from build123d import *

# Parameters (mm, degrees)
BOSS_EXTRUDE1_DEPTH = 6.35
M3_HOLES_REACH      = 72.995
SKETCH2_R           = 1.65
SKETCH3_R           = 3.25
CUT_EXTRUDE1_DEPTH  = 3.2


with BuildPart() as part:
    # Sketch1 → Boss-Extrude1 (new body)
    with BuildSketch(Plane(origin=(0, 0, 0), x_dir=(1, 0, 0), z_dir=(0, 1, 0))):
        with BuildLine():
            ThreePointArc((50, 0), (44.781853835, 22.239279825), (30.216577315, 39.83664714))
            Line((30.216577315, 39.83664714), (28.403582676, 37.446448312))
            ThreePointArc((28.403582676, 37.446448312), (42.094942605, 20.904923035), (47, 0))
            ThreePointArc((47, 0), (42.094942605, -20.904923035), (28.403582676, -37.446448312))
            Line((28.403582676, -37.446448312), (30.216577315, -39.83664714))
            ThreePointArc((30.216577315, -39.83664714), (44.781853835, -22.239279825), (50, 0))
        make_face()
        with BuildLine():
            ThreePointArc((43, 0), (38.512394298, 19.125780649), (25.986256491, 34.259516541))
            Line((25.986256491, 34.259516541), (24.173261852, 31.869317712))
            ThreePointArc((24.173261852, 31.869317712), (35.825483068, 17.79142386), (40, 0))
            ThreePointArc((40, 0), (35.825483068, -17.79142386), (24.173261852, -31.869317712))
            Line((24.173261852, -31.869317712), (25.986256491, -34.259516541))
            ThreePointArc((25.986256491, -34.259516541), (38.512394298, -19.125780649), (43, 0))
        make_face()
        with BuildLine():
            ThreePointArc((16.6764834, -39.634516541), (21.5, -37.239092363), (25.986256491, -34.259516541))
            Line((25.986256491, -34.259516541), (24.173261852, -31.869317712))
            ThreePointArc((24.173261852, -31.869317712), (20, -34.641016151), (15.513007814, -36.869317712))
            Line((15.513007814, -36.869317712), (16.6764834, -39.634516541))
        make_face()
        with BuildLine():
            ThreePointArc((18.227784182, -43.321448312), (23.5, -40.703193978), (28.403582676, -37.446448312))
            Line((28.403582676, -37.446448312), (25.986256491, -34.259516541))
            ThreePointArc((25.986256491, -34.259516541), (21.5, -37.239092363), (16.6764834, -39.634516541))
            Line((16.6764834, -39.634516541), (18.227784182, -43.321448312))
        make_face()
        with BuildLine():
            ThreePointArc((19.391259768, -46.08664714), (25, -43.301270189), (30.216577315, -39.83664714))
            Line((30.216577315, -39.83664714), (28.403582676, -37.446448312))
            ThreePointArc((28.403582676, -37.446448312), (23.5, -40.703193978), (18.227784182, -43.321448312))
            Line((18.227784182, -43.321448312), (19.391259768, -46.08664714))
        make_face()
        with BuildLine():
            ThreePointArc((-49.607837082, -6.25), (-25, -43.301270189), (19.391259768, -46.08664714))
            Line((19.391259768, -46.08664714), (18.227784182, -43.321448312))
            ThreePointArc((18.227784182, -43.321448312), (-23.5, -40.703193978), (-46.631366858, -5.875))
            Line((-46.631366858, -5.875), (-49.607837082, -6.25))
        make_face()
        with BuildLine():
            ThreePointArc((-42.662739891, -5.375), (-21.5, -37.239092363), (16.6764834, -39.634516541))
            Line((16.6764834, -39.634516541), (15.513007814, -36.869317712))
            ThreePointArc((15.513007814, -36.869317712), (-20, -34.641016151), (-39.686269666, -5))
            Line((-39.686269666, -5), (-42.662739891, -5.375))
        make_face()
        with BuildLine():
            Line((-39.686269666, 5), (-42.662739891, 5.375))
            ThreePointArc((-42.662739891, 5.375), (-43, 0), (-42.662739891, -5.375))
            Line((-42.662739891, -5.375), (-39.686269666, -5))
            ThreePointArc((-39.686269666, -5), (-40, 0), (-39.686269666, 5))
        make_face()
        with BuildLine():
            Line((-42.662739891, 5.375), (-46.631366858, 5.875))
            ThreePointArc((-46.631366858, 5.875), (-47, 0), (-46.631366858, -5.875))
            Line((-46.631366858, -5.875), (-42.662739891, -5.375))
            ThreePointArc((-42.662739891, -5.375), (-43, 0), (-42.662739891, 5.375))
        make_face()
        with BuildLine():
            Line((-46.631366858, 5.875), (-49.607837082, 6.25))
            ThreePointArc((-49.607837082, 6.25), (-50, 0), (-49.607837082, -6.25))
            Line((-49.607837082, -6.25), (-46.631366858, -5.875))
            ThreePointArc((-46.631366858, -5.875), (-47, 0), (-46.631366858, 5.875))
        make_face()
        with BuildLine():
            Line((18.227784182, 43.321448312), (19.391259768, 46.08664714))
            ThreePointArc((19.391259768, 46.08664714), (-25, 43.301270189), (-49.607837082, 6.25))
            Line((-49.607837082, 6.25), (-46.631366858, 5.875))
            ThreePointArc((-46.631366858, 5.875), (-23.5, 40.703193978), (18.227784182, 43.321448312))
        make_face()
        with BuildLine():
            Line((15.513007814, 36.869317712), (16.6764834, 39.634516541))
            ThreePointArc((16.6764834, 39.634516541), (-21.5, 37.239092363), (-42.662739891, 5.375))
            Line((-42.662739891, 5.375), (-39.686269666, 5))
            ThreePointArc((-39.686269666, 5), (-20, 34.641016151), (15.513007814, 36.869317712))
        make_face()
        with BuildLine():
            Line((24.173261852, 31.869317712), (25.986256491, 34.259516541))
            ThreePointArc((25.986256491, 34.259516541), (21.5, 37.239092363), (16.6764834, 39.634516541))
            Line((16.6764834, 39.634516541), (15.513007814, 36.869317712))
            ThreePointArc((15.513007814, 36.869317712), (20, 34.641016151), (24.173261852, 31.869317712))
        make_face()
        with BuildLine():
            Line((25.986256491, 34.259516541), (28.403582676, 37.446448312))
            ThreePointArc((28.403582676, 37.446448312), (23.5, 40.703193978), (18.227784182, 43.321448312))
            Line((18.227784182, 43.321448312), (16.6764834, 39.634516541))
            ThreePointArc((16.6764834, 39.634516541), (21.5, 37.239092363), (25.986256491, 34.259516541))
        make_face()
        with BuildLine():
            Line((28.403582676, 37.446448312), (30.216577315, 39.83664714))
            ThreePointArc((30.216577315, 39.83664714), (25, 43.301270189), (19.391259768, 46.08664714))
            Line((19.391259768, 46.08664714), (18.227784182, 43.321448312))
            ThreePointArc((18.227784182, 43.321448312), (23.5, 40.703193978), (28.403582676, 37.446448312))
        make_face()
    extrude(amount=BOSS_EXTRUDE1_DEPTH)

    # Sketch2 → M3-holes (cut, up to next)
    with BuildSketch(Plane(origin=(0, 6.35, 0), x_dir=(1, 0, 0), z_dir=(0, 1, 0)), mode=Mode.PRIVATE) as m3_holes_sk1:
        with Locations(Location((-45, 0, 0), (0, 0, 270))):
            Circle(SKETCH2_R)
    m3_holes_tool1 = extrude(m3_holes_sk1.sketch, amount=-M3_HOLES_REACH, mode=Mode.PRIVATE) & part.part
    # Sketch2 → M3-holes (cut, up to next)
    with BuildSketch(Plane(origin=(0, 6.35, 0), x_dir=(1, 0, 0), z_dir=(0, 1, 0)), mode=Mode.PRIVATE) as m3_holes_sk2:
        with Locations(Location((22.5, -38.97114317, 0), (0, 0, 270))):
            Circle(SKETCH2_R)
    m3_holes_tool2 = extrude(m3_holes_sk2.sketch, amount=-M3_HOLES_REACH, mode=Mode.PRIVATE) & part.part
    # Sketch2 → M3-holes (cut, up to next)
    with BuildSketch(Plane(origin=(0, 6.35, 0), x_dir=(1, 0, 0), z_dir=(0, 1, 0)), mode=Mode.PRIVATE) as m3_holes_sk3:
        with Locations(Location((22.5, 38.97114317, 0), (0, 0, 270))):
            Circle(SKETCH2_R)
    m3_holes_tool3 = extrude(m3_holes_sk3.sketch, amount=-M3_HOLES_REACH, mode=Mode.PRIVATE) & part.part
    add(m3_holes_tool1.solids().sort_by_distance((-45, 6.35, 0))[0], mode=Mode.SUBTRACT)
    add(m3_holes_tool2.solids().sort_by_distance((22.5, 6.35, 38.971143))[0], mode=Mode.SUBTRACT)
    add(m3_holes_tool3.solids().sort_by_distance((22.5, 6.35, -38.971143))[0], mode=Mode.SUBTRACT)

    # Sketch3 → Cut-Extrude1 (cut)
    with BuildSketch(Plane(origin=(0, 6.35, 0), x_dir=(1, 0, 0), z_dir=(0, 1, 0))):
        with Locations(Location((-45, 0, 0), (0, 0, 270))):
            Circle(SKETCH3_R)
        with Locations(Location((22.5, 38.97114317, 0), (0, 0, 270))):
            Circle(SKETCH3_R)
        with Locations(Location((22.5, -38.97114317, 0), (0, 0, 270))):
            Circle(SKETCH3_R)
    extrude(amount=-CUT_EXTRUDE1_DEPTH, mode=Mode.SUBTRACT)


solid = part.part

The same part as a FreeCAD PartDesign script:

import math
import FreeCAD as App
import Part
import Sketcher
Q = App.Units.Quantity

doc = App.newDocument("Part")
body = doc.addObject("PartDesign::Body", "Body")

sketch1 = body.newObject("Sketcher::SketchObject", "Sketch")
sketch1.AttachmentSupport = (doc.getObject("XZ_Plane"), [""])
sketch1.MapMode = "FlatFace"
sketch1.addGeometry([
    Part.ArcOfCircle(Part.Circle(App.Vector(0, 0, 0), App.Vector(0, 0, 1), 50), math.radians(-67), math.radians(0)),
    Part.ArcOfCircle(Part.Circle(App.Vector(0, 0, 0), App.Vector(0, 0, 1), 50), math.radians(-173), math.radians(-67)),
    Part.ArcOfCircle(Part.Circle(App.Vector(0, 0, 0), App.Vector(0, 0, 1), 50), math.radians(172.82), math.radians(187.18)),
    Part.ArcOfCircle(Part.Circle(App.Vector(0, 0, 0), App.Vector(0, 0, 1), 50), math.radians(67), math.radians(173)),
    Part.ArcOfCircle(Part.Circle(App.Vector(0, 0, 0), App.Vector(0, 0, 1), 50), math.radians(0), math.radians(67)),
    Part.ArcOfCircle(Part.Circle(App.Vector(0, 0, 0), App.Vector(0, 0, 1), 47), math.radians(67), math.radians(173)),
    Part.LineSegment(App.Vector(-46.6, 5.9, 0), App.Vector(-42.7, 5.4, 0)),
    Part.ArcOfCircle(Part.Circle(App.Vector(0, 0, 0), App.Vector(0, 0, 1), 43), math.radians(67), math.radians(173)),
    Part.LineSegment(App.Vector(16.7, 39.6, 0), App.Vector(18.2, 43.3, 0)),
    Part.ArcOfCircle(Part.Circle(App.Vector(0, 0, 0), App.Vector(0, 0, 1), 40), math.radians(-53), math.radians(0)),
    Part.ArcOfCircle(Part.Circle(App.Vector(0, 0, 0), App.Vector(0, 0, 1), 40), math.radians(0), math.radians(53)),
    Part.ArcOfCircle(Part.Circle(App.Vector(0, 0, 0), App.Vector(0, 0, 1), 40), math.radians(52.82), math.radians(67.18)),
    Part.ArcOfCircle(Part.Circle(App.Vector(0, 0, 0), App.Vector(0, 0, 1), 40), math.radians(67), math.radians(173)),
    Part.ArcOfCircle(Part.Circle(App.Vector(0, 0, 0), App.Vector(0, 0, 1), 40), math.radians(172.82), math.radians(187.18)),
    Part.ArcOfCircle(Part.Circle(App.Vector(0, 0, 0), App.Vector(0, 0, 1), 40), math.radians(-173), math.radians(-67)),
    Part.ArcOfCircle(Part.Circle(App.Vector(0, 0, 0), App.Vector(0, 0, 1), 40), math.radians(-67.18), math.radians(-52.82)),
    Part.ArcOfCircle(Part.Circle(App.Vector(0, 0, 0), App.Vector(0, 0, 1), 47), math.radians(-173), math.radians(-67)),
    Part.LineSegment(App.Vector(18.2, -43.3, 0), App.Vector(16.7, -39.6, 0)),
    Part.ArcOfCircle(Part.Circle(App.Vector(0, 0, 0), App.Vector(0, 0, 1), 43), math.radians(-173), math.radians(-67)),
    Part.LineSegment(App.Vector(-42.7, -5.4, 0), App.Vector(-46.6, -5.9, 0)),
    Part.LineSegment(App.Vector(26, -34.3, 0), App.Vector(28.4, -37.4, 0)),
    Part.ArcOfCircle(Part.Circle(App.Vector(0, 0, 0), App.Vector(0, 0, 1), 47), math.radians(-53), math.radians(0)),
    Part.ArcOfCircle(Part.Circle(App.Vector(0, 0, 0), App.Vector(0, 0, 1), 47), math.radians(0), math.radians(53)),
    Part.LineSegment(App.Vector(28.4, 37.4, 0), App.Vector(26, 34.3, 0)),
    Part.ArcOfCircle(Part.Circle(App.Vector(0, 0, 0), App.Vector(0, 0, 1), 43), math.radians(0), math.radians(53)),
    Part.ArcOfCircle(Part.Circle(App.Vector(0, 0, 0), App.Vector(0, 0, 1), 43), math.radians(-53), math.radians(0)),
], False)
sketch1.addConstraint([
    Sketcher.Constraint("Tangent", 0, 1, 1, 2),
    Sketcher.Constraint("Tangent", 1, 1, 2, 2),
    Sketcher.Constraint("Tangent", 2, 1, 3, 2),
    Sketcher.Constraint("Tangent", 3, 1, 4, 2),
    Sketcher.Constraint("Tangent", 4, 1, 0, 2),
    Sketcher.Constraint("Coincident", 5, 2, 6, 1),
    Sketcher.Constraint("Coincident", 6, 2, 7, 2),
    Sketcher.Constraint("Coincident", 7, 1, 8, 1),
    Sketcher.Constraint("Coincident", 8, 2, 5, 1),
    Sketcher.Constraint("Tangent", 9, 2, 10, 1),
    Sketcher.Constraint("Tangent", 10, 2, 11, 1),
    Sketcher.Constraint("Tangent", 11, 2, 12, 1),
    Sketcher.Constraint("Tangent", 12, 2, 13, 1),
    Sketcher.Constraint("Tangent", 13, 2, 14, 1),
    Sketcher.Constraint("Tangent", 14, 2, 15, 1),
    Sketcher.Constraint("Tangent", 15, 2, 9, 1),
    Sketcher.Constraint("Coincident", 16, 2, 17, 1),
    Sketcher.Constraint("Coincident", 17, 2, 18, 2),
    Sketcher.Constraint("Coincident", 18, 1, 19, 1),
    Sketcher.Constraint("Coincident", 19, 2, 16, 1),
    Sketcher.Constraint("Coincident", 20, 2, 21, 1),
    Sketcher.Constraint("Tangent", 21, 2, 22, 1),
    Sketcher.Constraint("Coincident", 22, 2, 23, 1),
    Sketcher.Constraint("Coincident", 23, 2, 24, 2),
    Sketcher.Constraint("Tangent", 24, 1, 25, 2),
    Sketcher.Constraint("Coincident", 25, 1, 20, 1),
    Sketcher.Constraint("Coincident", 0, 3, -1, 1),
    Sketcher.Constraint("Coincident", 2, 3, -1, 1),
    Sketcher.Constraint("Coincident", 5, 3, -1, 1),
    Sketcher.Constraint("Coincident", 7, 3, -1, 1),
    Sketcher.Constraint("Coincident", 9, 3, -1, 1),
    Sketcher.Constraint("Coincident", 11, 3, -1, 1),
    Sketcher.Constraint("Coincident", 13, 3, -1, 1),
    Sketcher.Constraint("Coincident", 16, 3, -1, 1),
    Sketcher.Constraint("Coincident", 18, 3, -1, 1),
    Sketcher.Constraint("Coincident", 21, 3, -1, 1),
    Sketcher.Constraint("Coincident", 24, 3, -1, 1),
    Sketcher.Constraint("Equal", 5, 16),
    Sketcher.Constraint("Equal", 7, 18),
    Sketcher.Constraint("Equal", 16, 21),
    Sketcher.Constraint("Equal", 21, 22),
    Sketcher.Constraint("Equal", 18, 24),
    Sketcher.Constraint("Equal", 24, 25),
    Sketcher.Constraint("PointOnObject", 4, 1, -1),
    Sketcher.Constraint("PointOnObject", 9, 2, -1),
    Sketcher.Constraint("PointOnObject", 21, 2, -1),
    Sketcher.Constraint("PointOnObject", 24, 1, -1),
    Sketcher.Constraint("Vertical", 1, 1, 2, 1),
    Sketcher.Constraint("Vertical", 0, 1, 3, 1),
    Sketcher.Constraint("Vertical", 12, 2, 13, 2),
    Sketcher.Constraint("Vertical", 11, 2, 14, 2),
    Sketcher.Constraint("Vertical", 10, 2, 15, 2),
    Sketcher.Constraint("Vertical", 8, 2, 16, 2),
    Sketcher.Constraint("Vertical", 7, 1, 17, 2),
    Sketcher.Constraint("Vertical", 6, 2, 18, 1),
    Sketcher.Constraint("Vertical", 5, 2, 19, 2),
    Sketcher.Constraint("Vertical", 20, 2, 22, 2),
    Sketcher.Constraint("Vertical", 23, 2, 25, 1),
    Sketcher.Constraint("Radius", 0, Q("50 mm")),
    Sketcher.Constraint("Radius", 5, Q("47 mm")),
    Sketcher.Constraint("Radius", 7, Q("43 mm")),
    Sketcher.Constraint("Radius", 9, Q("40 mm")),
    Sketcher.Constraint("DistanceY", -1, 1, 12, 2, Q("5 mm")),
    Sketcher.Constraint("DistanceY", 10, 2, 11, 2, Q("5 mm")),
    Sketcher.Constraint("DistanceY", 1, 1, 2, 1, Q("12.5 mm")),
    Sketcher.Constraint("DistanceY", 6, 2, 5, 2, Q("0.5 mm")),
    Sketcher.Constraint("DistanceY", 18, 1, 6, 2, Q("10.75 mm")),
    Sketcher.Constraint("DistanceY", 16, 2, 20, 2, Q("5.875 mm")),
    Sketcher.Constraint("DistanceY", 23, 2, 7, 1, Q("5.375 mm")),
    Sketcher.Constraint("DistanceY", 8, 2, 3, 1, Q("2.765199 mm")),
    Sketcher.Constraint("DistanceX", 7, 1, 8, 2, Q("1.551301 mm")),
    Sketcher.Constraint("DistanceY", 10, 2, 7, 1, Q("7.765199 mm")),
    Sketcher.Constraint("DistanceX", 16, 2, 20, 2, Q("10.175798 mm")),
])
pad1 = body.newObject("PartDesign::Pad", "Pad")
pad1.Profile = sketch1
pad1.Length = 6.35
pad1.Reversed = True

sketch2 = body.newObject("Sketcher::SketchObject", "Sketch001")
sketch2.AttachmentSupport = (doc.getObject("XZ_Plane"), [""])
sketch2.MapMode = "FlatFace"
sketch2.AttachmentOffset = App.Placement(App.Vector(0, 0, -6.35), App.Rotation())
sketch2.addGeometry(Part.Circle(App.Vector(-45, 0, 0), App.Vector(0, 0, 1), 1.6), False)
sketch2.addConstraint([
    Sketcher.Constraint("PointOnObject", 0, 3, -1),
    Sketcher.Constraint("Diameter", 0, Q("3.3 mm")),
    Sketcher.Constraint("DistanceX", 0, 3, -1, 1, Q("45 mm")),
])
pocket1 = body.newObject("PartDesign::Pocket", "Pocket")
pocket1.Profile = sketch2
pocket1.Type = "UpToFirst"
pocket1.Reversed = True

sketch3 = body.newObject("Sketcher::SketchObject", "Sketch002")
sketch3.AttachmentSupport = (doc.getObject("XZ_Plane"), [""])
sketch3.MapMode = "FlatFace"
sketch3.AttachmentOffset = App.Placement(App.Vector(0, 0, -6.35), App.Rotation())
sketch3.addGeometry(Part.Circle(App.Vector(22.5, 39, 0), App.Vector(0, 0, 1), 1.6), False)
sketch3.addConstraint([
    Sketcher.Constraint("Diameter", 0, Q("3.3 mm")),
    Sketcher.Constraint("DistanceX", -1, 1, 0, 3, Q("22.5 mm")),
    Sketcher.Constraint("DistanceY", -1, 1, 0, 3, Q("38.971143 mm")),
])
pocket2 = body.newObject("PartDesign::Pocket", "Pocket001")
pocket2.Profile = sketch3
pocket2.Type = "UpToFirst"
pocket2.Reversed = True

sketch4 = body.newObject("Sketcher::SketchObject", "Sketch003")
sketch4.AttachmentSupport = (doc.getObject("XZ_Plane"), [""])
sketch4.MapMode = "FlatFace"
sketch4.AttachmentOffset = App.Placement(App.Vector(0, 0, -6.35), App.Rotation())
sketch4.addGeometry(Part.Circle(App.Vector(22.5, -39, 0), App.Vector(0, 0, 1), 1.6), False)
sketch4.addConstraint([
    Sketcher.Constraint("Diameter", 0, Q("3.3 mm")),
    Sketcher.Constraint("DistanceX", -1, 1, 0, 3, Q("22.5 mm")),
    Sketcher.Constraint("DistanceY", 0, 3, -1, 1, Q("38.971143 mm")),
])
pocket3 = body.newObject("PartDesign::Pocket", "Pocket002")
pocket3.Profile = sketch4
pocket3.Type = "UpToFirst"
pocket3.Reversed = True

sketch5 = body.newObject("Sketcher::SketchObject", "Sketch004")
sketch5.AttachmentSupport = (doc.getObject("XZ_Plane"), [""])
sketch5.MapMode = "FlatFace"
sketch5.AttachmentOffset = App.Placement(App.Vector(0, 0, -6.35), App.Rotation())
sketch5.addGeometry([
    Part.Circle(App.Vector(-45, 0, 0), App.Vector(0, 0, 1), 3.2),
    Part.Circle(App.Vector(22.5, -39, 0), App.Vector(0, 0, 1), 3.2),
    Part.Circle(App.Vector(22.5, 39, 0), App.Vector(0, 0, 1), 3.2),
], False)
sketch5.addConstraint([
    Sketcher.Constraint("Equal", 0, 1),
    Sketcher.Constraint("Equal", 1, 2),
    Sketcher.Constraint("Symmetric", 1, 3, 2, 3, -1),
    Sketcher.Constraint("PointOnObject", 0, 3, -1),
    Sketcher.Constraint("Diameter", 0, Q("6.5 mm")),
    Sketcher.Constraint("DistanceX", 0, 3, -1, 1, Q("45 mm")),
    Sketcher.Constraint("DistanceX", -1, 1, 1, 3, Q("22.5 mm")),
    Sketcher.Constraint("DistanceY", 1, 3, -1, 1, Q("38.971143 mm")),
])
pocket4 = body.newObject("PartDesign::Pocket", "Pocket003")
pocket4.Profile = sketch5
pocket4.Length = 3.2
pocket4.Reversed = True

doc.recompute()
